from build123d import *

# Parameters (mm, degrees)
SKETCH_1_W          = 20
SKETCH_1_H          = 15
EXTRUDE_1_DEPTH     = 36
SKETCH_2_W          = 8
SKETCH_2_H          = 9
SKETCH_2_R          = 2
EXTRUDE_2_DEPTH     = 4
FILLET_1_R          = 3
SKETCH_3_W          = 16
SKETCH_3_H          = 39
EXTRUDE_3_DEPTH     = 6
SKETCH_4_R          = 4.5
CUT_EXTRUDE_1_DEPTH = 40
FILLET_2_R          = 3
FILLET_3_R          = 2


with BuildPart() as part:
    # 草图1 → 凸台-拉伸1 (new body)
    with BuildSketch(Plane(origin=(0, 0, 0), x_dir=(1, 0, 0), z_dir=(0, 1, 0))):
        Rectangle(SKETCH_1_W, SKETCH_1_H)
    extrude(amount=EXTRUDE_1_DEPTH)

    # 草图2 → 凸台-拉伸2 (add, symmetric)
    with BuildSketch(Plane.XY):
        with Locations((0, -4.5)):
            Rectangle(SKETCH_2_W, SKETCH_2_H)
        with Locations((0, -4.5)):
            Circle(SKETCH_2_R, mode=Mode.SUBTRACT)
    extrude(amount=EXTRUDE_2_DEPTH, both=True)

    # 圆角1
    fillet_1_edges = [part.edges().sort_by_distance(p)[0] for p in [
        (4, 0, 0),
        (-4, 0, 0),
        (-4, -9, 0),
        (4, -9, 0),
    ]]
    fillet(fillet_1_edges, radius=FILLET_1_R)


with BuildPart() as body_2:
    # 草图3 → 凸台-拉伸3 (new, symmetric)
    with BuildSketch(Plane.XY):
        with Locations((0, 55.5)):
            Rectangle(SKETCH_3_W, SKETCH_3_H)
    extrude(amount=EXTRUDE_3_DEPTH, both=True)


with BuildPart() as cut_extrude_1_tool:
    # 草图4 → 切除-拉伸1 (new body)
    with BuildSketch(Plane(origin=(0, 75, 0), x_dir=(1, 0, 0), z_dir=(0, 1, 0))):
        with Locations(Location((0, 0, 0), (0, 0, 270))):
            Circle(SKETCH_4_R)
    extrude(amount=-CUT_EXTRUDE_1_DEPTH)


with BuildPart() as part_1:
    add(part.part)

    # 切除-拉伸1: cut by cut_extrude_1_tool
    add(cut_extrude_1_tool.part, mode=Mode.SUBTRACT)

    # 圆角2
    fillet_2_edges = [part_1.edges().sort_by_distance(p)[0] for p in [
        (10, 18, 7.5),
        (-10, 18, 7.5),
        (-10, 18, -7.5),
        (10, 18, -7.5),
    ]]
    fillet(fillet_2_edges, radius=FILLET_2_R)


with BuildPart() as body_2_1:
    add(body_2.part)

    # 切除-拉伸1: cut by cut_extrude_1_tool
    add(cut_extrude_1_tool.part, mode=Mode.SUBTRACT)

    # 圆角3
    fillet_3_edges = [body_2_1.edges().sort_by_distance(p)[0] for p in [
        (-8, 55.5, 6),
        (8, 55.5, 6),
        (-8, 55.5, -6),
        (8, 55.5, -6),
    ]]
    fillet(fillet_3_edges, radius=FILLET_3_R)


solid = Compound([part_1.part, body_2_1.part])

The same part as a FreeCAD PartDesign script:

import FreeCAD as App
import Part
import Sketcher
from FreeCAD import Vector


def edges_at(feature, points):
    """Names of the edges that pass closest to the given points."""
    edges = feature.Shape.Edges
    near = lambda p: min(range(len(edges)), key=lambda i: edges[i].distToShape(Part.Vertex(*p))[0])
    return sorted({f"Edge{near(p) + 1}" for p in points})


def add_polygon(sketch, points):
    """Adds a closed chain of lines whose ends are joined by coincident constraints."""
    first, n = sketch.GeometryCount, len(points)
    for a, b in zip(points, points[1:] + points[:1]):
        sketch.addGeometry(Part.LineSegment(App.Vector(*a, 0), App.Vector(*b, 0)), False)
    for i in range(n):
        sketch.addConstraint(Sketcher.Constraint("Coincident", first + i, 2, first + (i + 1) % n, 1))

doc = App.newDocument("Part")
params = doc.addObject("Spreadsheet::Sheet", "Params")
for row, (alias, value) in enumerate([
    ("sketch1_width", "20 mm"),
    ("sketch1_height", "15 mm"),
    ("pad1_length", "36 mm"),
    ("sketch2_diameter", "4 mm"),
    ("sketch2_width", "8 mm"),
    ("sketch2_height", "9 mm"),
    ("pad2_length", "8 mm"),
    ("fillet_radius", "3 mm"),
    ("sketch3_width", "16 mm"),
    ("sketch3_height", "39 mm"),
    ("pad3_length", "12 mm"),
    ("sketch4_diameter", "9 mm"),
    ("pad4_length", "40 mm"),
    ("fillet2_radius", "3 mm"),
    ("fillet3_radius", "2 mm"),
], start=1):
    params.set(f"A{row}", alias)
    params.set(f"B{row}", "=" + value)
    params.setAlias(f"B{row}", alias)

body = doc.addObject("PartDesign::Body", "Body")

# Sketch on XZ plane
sketch1 = body.newObject("Sketcher::SketchObject", "Sketch")
sketch1.AttachmentSupport = (doc.getObject("XZ_Plane"), [""])
sketch1.MapMode = "FlatFace"
add_polygon(sketch1, [(-10, -8), (-10, 8), (10, 8), (10, -8)])  # lines 0-3
sketch1.addConstraint([
    Sketcher.Constraint("Vertical", 0),
    Sketcher.Constraint("Horizontal", 1),
    Sketcher.Constraint("Vertical", 2),
    Sketcher.Constraint("Horizontal", 3),
    Sketcher.Constraint("Symmetric", 0, 2, 2, 2, -1, 1),
    Sketcher.Constraint("DistanceX", 1, 1, 1, 2, 20.0),
    Sketcher.Constraint("DistanceY", 0, 1, 0, 2, 15.0),
])
sketch1.setExpression("Constraints[9]", "Params.sketch1_width")
sketch1.setExpression("Constraints[10]", "Params.sketch1_height")
pad1 = body.newObject("PartDesign::Pad", "Pad")
pad1.Profile = sketch1
pad1.setExpression("Length", "Params.pad1_length")
pad1.Reversed = True

# Sketch on XY plane
sketch2 = body.newObject("Sketcher::SketchObject", "Sketch001")
sketch2.AttachmentSupport = (doc.getObject("XY_Plane"), [""])
sketch2.MapMode = "FlatFace"
add_polygon(sketch2, [(-4, 0), (-4, -9), (4, -9), (4, 0)])  # lines 0-3
sketch2.addGeometry(Part.Circle(Vector(0, -4.5, 0), Vector(0, 0, 1), 2), False)  # 4
sketch2.addConstraint([
    Sketcher.Constraint("Vertical", 0),
    Sketcher.Constraint("Horizontal", 1),
    Sketcher.Constraint("Vertical", 2),
    Sketcher.Constraint("Horizontal", 3),
    Sketcher.Constraint("Symmetric", 2, 2, 3, 2, -1, 1),
    Sketcher.Constraint("PointOnObject", 4, 3, -2),
    Sketcher.Constraint("Diameter", 4, 4.0),
    Sketcher.Constraint("DistanceX", 1, 1, 1, 2, 8.0),
    Sketcher.Constraint("DistanceY", 0, 2, 0, 1, 9.0),
    Sketcher.Constraint("DistanceY", 4, 3, -1, 1, 4.5),
])
sketch2.setExpression("Constraints[10]", "Params.sketch2_diameter")
sketch2.setExpression("Constraints[11]", "Params.sketch2_width")
sketch2.setExpression("Constraints[12]", "Params.sketch2_height")
pad2 = body.newObject("PartDesign::Pad", "Pad001")
pad2.Profile = sketch2
pad2.setExpression("Length", "Params.pad2_length")
pad2.Midplane = True
doc.recompute()

fillet = body.newObject("PartDesign::Fillet", "Fillet")
fillet.Base = (pad2, edges_at(pad2, [
    (4, 0, 0),
    (-4, 0, 0),
    (-4, -9, 0),
    (4, -9, 0),
]))
fillet.setExpression("Radius", "Params.fillet_radius")
body2 = doc.addObject("PartDesign::Body", "Body001")

# Sketch on XY plane
sketch3 = body2.newObject("Sketcher::SketchObject", "Sketch002")
sketch3.AttachmentSupport = (doc.getObject("XY_Plane001"), [""])
sketch3.MapMode = "FlatFace"
add_polygon(sketch3, [(-8, 75), (-8, 36), (8, 36), (8, 75)])  # lines 0-3
sketch3.addConstraint([
    Sketcher.Constraint("Vertical", 0),
    Sketcher.Constraint("Horizontal", 1),
    Sketcher.Constraint("Vertical", 2),
    Sketcher.Constraint("Horizontal", 3),
    Sketcher.Constraint("DistanceX", 1, 1, 1, 2, 16.0),
    Sketcher.Constraint("DistanceY", 0, 2, 0, 1, 39.0),
    Sketcher.Constraint("DistanceX", 0, 2, -1, 1, 8.0),
    Sketcher.Constraint("DistanceY", -1, 1, 0, 2, 36.0),
])
sketch3.setExpression("Constraints[8]", "Params.sketch3_width")
sketch3.setExpression("Constraints[9]", "Params.sketch3_height")
pad3 = body2.newObject("PartDesign::Pad", "Pad002")
pad3.Profile = sketch3
pad3.setExpression("Length", "Params.pad3_length")
pad3.Midplane = True
body3 = doc.addObject("PartDesign::Body", "Body002")

# Sketch on XZ plane
sketch4 = body3.newObject("Sketcher::SketchObject", "Sketch003")
sketch4.AttachmentSupport = (doc.getObject("XZ_Plane002"), [""])
sketch4.MapMode = "FlatFace"
sketch4.AttachmentOffset = App.Placement(Vector(0, 0, -75), App.Rotation())
sketch4.addGeometry(Part.Circle(Vector(0, 0, 0), Vector(0, 0, 1), 4.5), False)
sketch4.addConstraint([
    Sketcher.Constraint("Coincident", 0, 3, -1, 1),
    Sketcher.Constraint("Diameter", 0, 9.0),
])
sketch4.setExpression("Constraints[1]", "Params.sketch4_diameter")
pad4 = body3.newObject("PartDesign::Pad", "Pad003")
pad4.Profile = sketch4
pad4.setExpression("Length", "Params.pad4_length")
doc.recompute()

body4 = doc.addObject("PartDesign::Body", "Body003")
body4.BaseFeature = body3
boolean = body.newObject("PartDesign::Boolean", "Boolean")
boolean.Type = "Cut"
boolean.addObjects([body4])
doc.recompute()

fillet2 = body.newObject("PartDesign::Fillet", "Fillet001")
fillet2.Base = (boolean, edges_at(boolean, [
    (10, 18, 7.5),
    (-10, 18, 7.5),
    (-10, 18, -7.5),
    (10, 18, -7.5),
]))
fillet2.setExpression("Radius", "Params.fillet2_radius")
doc.recompute()

boolean2 = body2.newObject("PartDesign::Boolean", "Boolean001")
boolean2.Type = "Cut"
boolean2.addObjects([body3])
doc.recompute()

fillet3 = body2.newObject("PartDesign::Fillet", "Fillet002")
fillet3.Base = (boolean2, edges_at(boolean2, [
    (-8, 55.5, 6),
    (8, 55.5, 6),
    (-8, 55.5, -6),
    (8, 55.5, -6),
]))
fillet3.setExpression("Radius", "Params.fillet3_radius")

doc.recompute()
